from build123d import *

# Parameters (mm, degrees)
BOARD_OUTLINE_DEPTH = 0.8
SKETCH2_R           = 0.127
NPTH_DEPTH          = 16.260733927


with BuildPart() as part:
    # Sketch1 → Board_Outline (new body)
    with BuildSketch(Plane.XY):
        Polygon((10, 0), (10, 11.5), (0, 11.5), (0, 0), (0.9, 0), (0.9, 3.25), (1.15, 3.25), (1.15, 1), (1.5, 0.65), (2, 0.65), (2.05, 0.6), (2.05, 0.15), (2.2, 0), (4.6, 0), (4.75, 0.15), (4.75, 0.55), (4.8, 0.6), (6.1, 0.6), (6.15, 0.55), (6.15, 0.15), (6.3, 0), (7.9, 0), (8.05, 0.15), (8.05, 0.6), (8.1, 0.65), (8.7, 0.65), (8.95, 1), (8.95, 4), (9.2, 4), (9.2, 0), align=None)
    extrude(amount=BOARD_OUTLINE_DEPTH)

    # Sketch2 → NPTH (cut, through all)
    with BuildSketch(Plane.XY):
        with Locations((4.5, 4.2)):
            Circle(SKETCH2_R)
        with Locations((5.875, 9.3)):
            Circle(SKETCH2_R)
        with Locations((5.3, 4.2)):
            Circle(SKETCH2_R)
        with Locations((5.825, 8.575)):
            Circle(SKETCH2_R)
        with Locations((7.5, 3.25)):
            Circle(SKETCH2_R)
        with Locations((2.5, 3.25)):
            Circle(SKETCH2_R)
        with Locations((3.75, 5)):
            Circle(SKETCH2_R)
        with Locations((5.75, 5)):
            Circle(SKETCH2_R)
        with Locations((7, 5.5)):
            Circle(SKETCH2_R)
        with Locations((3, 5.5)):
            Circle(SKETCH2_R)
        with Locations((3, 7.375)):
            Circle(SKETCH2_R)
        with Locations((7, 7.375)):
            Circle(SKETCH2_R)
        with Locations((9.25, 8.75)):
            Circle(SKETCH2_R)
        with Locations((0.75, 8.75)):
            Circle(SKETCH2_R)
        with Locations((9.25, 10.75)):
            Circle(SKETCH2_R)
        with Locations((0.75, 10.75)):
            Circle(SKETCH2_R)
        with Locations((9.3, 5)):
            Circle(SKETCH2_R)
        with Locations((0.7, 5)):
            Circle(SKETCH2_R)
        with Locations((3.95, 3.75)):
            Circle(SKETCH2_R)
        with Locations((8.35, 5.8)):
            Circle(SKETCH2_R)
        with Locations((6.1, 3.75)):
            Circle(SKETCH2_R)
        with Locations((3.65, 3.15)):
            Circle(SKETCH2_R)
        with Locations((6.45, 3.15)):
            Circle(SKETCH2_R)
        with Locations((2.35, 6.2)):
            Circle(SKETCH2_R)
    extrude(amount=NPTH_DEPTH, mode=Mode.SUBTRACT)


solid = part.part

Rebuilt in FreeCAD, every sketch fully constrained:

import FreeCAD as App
import Part
import Sketcher
from FreeCAD import Vector

doc = App.newDocument("Part")
body = doc.addObject("PartDesign::Body", "Body")

# Sketch on XY plane
sketch1 = body.newObject("Sketcher::SketchObject", "Sketch")
sketch1.AttachmentSupport = (doc.getObject("XY_Plane"), [""])
sketch1.MapMode = "FlatFace"
sketch1.addGeometry(Part.LineSegment(Vector(10, 0, 0), Vector(10, 11.5, 0)), False)
sketch1.addGeometry(Part.LineSegment(Vector(10, 11.5, 0), Vector(0, 11.5, 0)), False)
sketch1.addGeometry(Part.LineSegment(Vector(0, 11.5, 0), Vector(0, 0, 0)), False)
sketch1.addGeometry(Part.LineSegment(Vector(0, 0, 0), Vector(0.9, 0, 0)), False)
sketch1.addGeometry(Part.LineSegment(Vector(0.9, 0, 0), Vector(0.9, 3.25, 0)), False)
sketch1.addGeometry(Part.LineSegment(Vector(0.9, 3.25, 0), Vector(1.15, 3.25, 0)), False)
sketch1.addGeometry(Part.LineSegment(Vector(1.15, 3.25, 0), Vector(1.15, 1, 0)), False)
sketch1.addGeometry(Part.LineSegment(Vector(1.15, 1, 0), Vector(1.5, 0.65, 0)), False)
sketch1.addGeometry(Part.LineSegment(Vector(1.5, 0.65, 0), Vector(2, 0.65, 0)), False)
sketch1.addGeometry(Part.LineSegment(Vector(2, 0.65, 0), Vector(2.05, 0.6, 0)), False)
sketch1.addGeometry(Part.LineSegment(Vector(2.05, 0.6, 0), Vector(2.05, 0.15, 0)), False)
sketch1.addGeometry(Part.LineSegment(Vector(2.05, 0.15, 0), Vector(2.2, 0, 0)), False)
sketch1.addGeometry(Part.LineSegment(Vector(2.2, 0, 0), Vector(4.6, 0, 0)), False)
sketch1.addGeometry(Part.LineSegment(Vector(4.6, 0, 0), Vector(4.75, 0.15, 0)), False)
sketch1.addGeometry(Part.LineSegment(Vector(4.75, 0.15, 0), Vector(4.75, 0.55, 0)), False)
sketch1.addGeometry(Part.LineSegment(Vector(4.75, 0.55, 0), Vector(4.8, 0.6, 0)), False)
sketch1.addGeometry(Part.LineSegment(Vector(4.8, 0.6, 0), Vector(6.1, 0.6, 0)), False)
sketch1.addGeometry(Part.LineSegment(Vector(6.1, 0.6, 0), Vector(6.15, 0.55, 0)), False)
sketch1.addGeometry(Part.LineSegment(Vector(6.15, 0.55, 0), Vector(6.15, 0.15, 0)), False)
sketch1.addGeometry(Part.LineSegment(Vector(6.15, 0.15, 0), Vector(6.3, 0, 0)), False)
sketch1.addGeometry(Part.LineSegment(Vector(6.3, 0, 0), Vector(7.9, 0, 0)), False)
sketch1.addGeometry(Part.LineSegment(Vector(7.9, 0, 0), Vector(8.05, 0.15, 0)), False)
sketch1.addGeometry(Part.LineSegment(Vector(8.05, 0.15, 0), Vector(8.05, 0.6, 0)), False)
sketch1.addGeometry(Part.LineSegment(Vector(8.05, 0.6, 0), Vector(8.1, 0.65, 0)), False)
sketch1.addGeometry(Part.LineSegment(Vector(8.1, 0.65, 0), Vector(8.7, 0.65, 0)), False)
sketch1.addGeometry(Part.LineSegment(Vector(8.7, 0.65, 0), Vector(8.95, 1, 0)), False)
sketch1.addGeometry(Part.LineSegment(Vector(8.95, 1, 0), Vector(8.95, 4, 0)), False)
sketch1.addGeometry(Part.LineSegment(Vector(8.95, 4, 0), Vector(9.2, 4, 0)), False)
sketch1.addGeometry(Part.LineSegment(Vector(9.2, 4, 0), Vector(9.2, 0, 0)), False)
sketch1.addGeometry(Part.LineSegment(Vector(9.2, 0, 0), Vector(10, 0, 0)), False)
sketch1.addConstraint(Sketcher.Constraint("Coincident", 0, 2, 1, 1))
sketch1.addConstraint(Sketcher.Constraint("Coincident", 1, 2, 2, 1))
sketch1.addConstraint(Sketcher.Constraint("Coincident", 2, 2, 3, 1))
sketch1.addConstraint(Sketcher.Constraint("Coincident", 3, 2, 4, 1))
sketch1.addConstraint(Sketcher.Constraint("Coincident", 4, 2, 5, 1))
sketch1.addConstraint(Sketcher.Constraint("Coincident", 5, 2, 6, 1))
sketch1.addConstraint(Sketcher.Constraint("Coincident", 6, 2, 7, 1))
sketch1.addConstraint(Sketcher.Constraint("Coincident", 7, 2, 8, 1))
sketch1.addConstraint(Sketcher.Constraint("Coincident", 8, 2, 9, 1))
sketch1.addConstraint(Sketcher.Constraint("Coincident", 9, 2, 10, 1))
sketch1.addConstraint(Sketcher.Constraint("Coincident", 10, 2, 11, 1))
sketch1.addConstraint(Sketcher.Constraint("Coincident", 11, 2, 12, 1))
sketch1.addConstraint(Sketcher.Constraint("Coincident", 12, 2, 13, 1))
sketch1.addConstraint(Sketcher.Constraint("Coincident", 13, 2, 14, 1))
sketch1.addConstraint(Sketcher.Constraint("Coincident", 14, 2, 15, 1))
sketch1.addConstraint(Sketcher.Constraint("Coincident", 15, 2, 16, 1))
sketch1.addConstraint(Sketcher.Constraint("Coincident", 16, 2, 17, 1))
sketch1.addConstraint(Sketcher.Constraint("Coincident", 17, 2, 18, 1))
sketch1.addConstraint(Sketcher.Constraint("Coincident", 18, 2, 19, 1))
sketch1.addConstraint(Sketcher.Constraint("Coincident", 19, 2, 20, 1))
sketch1.addConstraint(Sketcher.Constraint("Coincident", 20, 2, 21, 1))
sketch1.addConstraint(Sketcher.Constraint("Coincident", 21, 2, 22, 1))
sketch1.addConstraint(Sketcher.Constraint("Coincident", 22, 2, 23, 1))
sketch1.addConstraint(Sketcher.Constraint("Coincident", 23, 2, 24, 1))
sketch1.addConstraint(Sketcher.Constraint("Coincident", 24, 2, 25, 1))
sketch1.addConstraint(Sketcher.Constraint("Coincident", 25, 2, 26, 1))
sketch1.addConstraint(Sketcher.Constraint("Coincident", 26, 2, 27, 1))
sketch1.addConstraint(Sketcher.Constraint("Coincident", 27, 2, 28, 1))
sketch1.addConstraint(Sketcher.Constraint("Coincident", 28, 2, 29, 1))
sketch1.addConstraint(Sketcher.Constraint("Coincident", 29, 2, 0, 1))
sketch1.addConstraint(Sketcher.Constraint("Vertical", 0))
sketch1.addConstraint(Sketcher.Constraint("Horizontal", 1))
sketch1.addConstraint(Sketcher.Constraint("Vertical", 2))
sketch1.addConstraint(Sketcher.Constraint("Horizontal", 3))
sketch1.addConstraint(Sketcher.Constraint("Vertical", 4))
sketch1.addConstraint(Sketcher.Constraint("Horizontal", 5))
sketch1.addConstraint(Sketcher.Constraint("Vertical", 6))
sketch1.addConstraint(Sketcher.Constraint("Horizontal", 8))
sketch1.addConstraint(Sketcher.Constraint("Vertical", 10))
sketch1.addConstraint(Sketcher.Constraint("Horizontal", 12))
sketch1.addConstraint(Sketcher.Constraint("Vertical", 14))
sketch1.addConstraint(Sketcher.Constraint("Horizontal", 16))
sketch1.addConstraint(Sketcher.Constraint("Vertical", 18))
sketch1.addConstraint(Sketcher.Constraint("Horizontal", 20))
sketch1.addConstraint(Sketcher.Constraint("Vertical", 22))
sketch1.addConstraint(Sketcher.Constraint("Horizontal", 24))
sketch1.addConstraint(Sketcher.Constraint("Vertical", 26))
sketch1.addConstraint(Sketcher.Constraint("Horizontal", 27))
sketch1.addConstraint(Sketcher.Constraint("Vertical", 28))
sketch1.addConstraint(Sketcher.Constraint("Horizontal", 29))
sketch1.addConstraint(Sketcher.Constraint("Coincident", 2, 2, -1, 1))
sketch1.addConstraint(Sketcher.Constraint("PointOnObject", 11, 2, -1))
sketch1.addConstraint(Sketcher.Constraint("PointOnObject", 19, 2, -1))
sketch1.addConstraint(Sketcher.Constraint("PointOnObject", 28, 2, -1))
sketch1.addConstraint(Sketcher.Constraint("Parallel", 7, 9))
sketch1.addConstraint(Sketcher.Constraint("Parallel", 9, 11))
sketch1.addConstraint(Sketcher.Constraint("Perpendicular", 11, 13))
sketch1.addConstraint(Sketcher.Constraint("Parallel", 13, 15))
sketch1.addConstraint(Sketcher.Constraint("Perpendicular", 15, 17))
sketch1.addConstraint(Sketcher.Constraint("Parallel", 17, 19))
sketch1.addConstraint(Sketcher.Constraint("Perpendicular", 19, 21))
sketch1.addConstraint(Sketcher.Constraint("Parallel", 21, 23))
sketch1.addConstraint(Sketcher.Constraint("Horizontal", 10, 2, 13, 2))
sketch1.addConstraint(Sketcher.Constraint("Horizontal", 9, 2, 15, 2))
sketch1.addConstraint(Sketcher.Constraint("Horizontal", 14, 2, 17, 2))
sketch1.addConstraint(Sketcher.Constraint("Horizontal", 13, 2, 18, 2))
sketch1.addConstraint(Sketcher.Constraint("Horizontal", 18, 2, 21, 2))
sketch1.addConstraint(Sketcher.Constraint("Horizontal", 16, 2, 22, 2))
sketch1.addConstraint(Sketcher.Constraint("Horizontal", 8, 2, 23, 2))
sketch1.addConstraint(Sketcher.Constraint("Horizontal", 6, 2, 25, 2))
sketch1.addConstraint(Sketcher.Constraint("Equal", 5, 27))
sketch1.addConstraint(Sketcher.Constraint("Equal", 11, 13))
sketch1.addConstraint(Sketcher.Constraint("Equal", 9, 15))
sketch1.addConstraint(Sketcher.Constraint("DistanceX", 1, 2, 1, 1, 10.0))
sketch1.addConstraint(Sketcher.Constraint("DistanceY", 26, 1, 26, 2, 3.0))
sketch1.addConstraint(Sketcher.Constraint("DistanceY", 28, 2, 28, 1, 4.0))
sketch1.addConstraint(Sketcher.Constraint("DistanceX", 3, 1, 3, 2, 0.9))
sketch1.addConstraint(Sketcher.Constraint("DistanceX", 8, 1, 8, 2, 0.5))
sketch1.addConstraint(Sketcher.Constraint("DistanceX", 12, 1, 12, 2, 2.4))
sketch1.addConstraint(Sketcher.Constraint("DistanceX", 16, 1, 16, 2, 1.3))
sketch1.addConstraint(Sketcher.Constraint("DistanceX", 20, 1, 20, 2, 1.6))
sketch1.addConstraint(Sketcher.Constraint("DistanceX", 24, 1, 24, 2, 0.6))
sketch1.addConstraint(Sketcher.Constraint("DistanceX", 29, 1, 29, 2, 0.8))
sketch1.addConstraint(Sketcher.Constraint("DistanceY", 0, 1, 0, 2, 11.5))
sketch1.addConstraint(Sketcher.Constraint("DistanceY", 14, 1, 14, 2, 0.4))
sketch1.addConstraint(Sketcher.Constraint("DistanceX", -1, 1, 8, 2, 2.0))
sketch1.addConstraint(Sketcher.Constraint("DistanceX", 5, 1, 5, 2, 0.25))
sketch1.addConstraint(Sketcher.Constraint("DistanceY", 4, 1, 4, 2, 3.25))
sketch1.addConstraint(Sketcher.Constraint("DistanceY", 10, 2, 10, 1, 0.45))
pad1 = body.newObject("PartDesign::Pad", "Pad")
pad1.Profile = sketch1
pad1.Length = 0.8

# Sketch on XY plane
sketch2 = body.newObject("Sketcher::SketchObject", "Sketch001")
sketch2.AttachmentSupport = (doc.getObject("XY_Plane"), [""])
sketch2.MapMode = "FlatFace"
sketch2.addGeometry(Part.Circle(Vector(4.5, 4.2, 0), Vector(0, 0, 1), 0.127), False)
sketch2.addGeometry(Part.Circle(Vector(5.875, 9.3, 0), Vector(0, 0, 1), 0.127), False)
sketch2.addGeometry(Part.Circle(Vector(5.3, 4.2, 0), Vector(0, 0, 1), 0.127), False)
sketch2.addGeometry(Part.Circle(Vector(5.825, 8.575, 0), Vector(0, 0, 1), 0.127), False)
sketch2.addGeometry(Part.Circle(Vector(7.5, 3.25, 0), Vector(0, 0, 1), 0.127), False)
sketch2.addGeometry(Part.Circle(Vector(2.5, 3.25, 0), Vector(0, 0, 1), 0.127), False)
sketch2.addGeometry(Part.Circle(Vector(3.75, 5, 0), Vector(0, 0, 1), 0.127), False)
sketch2.addGeometry(Part.Circle(Vector(5.75, 5, 0), Vector(0, 0, 1), 0.127), False)
sketch2.addGeometry(Part.Circle(Vector(7, 5.5, 0), Vector(0, 0, 1), 0.127), False)
sketch2.addGeometry(Part.Circle(Vector(3, 5.5, 0), Vector(0, 0, 1), 0.127), False)
sketch2.addGeometry(Part.Circle(Vector(3, 7.375, 0), Vector(0, 0, 1), 0.127), False)
sketch2.addGeometry(Part.Circle(Vector(7, 7.375, 0), Vector(0, 0, 1), 0.127), False)
sketch2.addGeometry(Part.Circle(Vector(9.25, 8.75, 0), Vector(0, 0, 1), 0.127), False)
sketch2.addGeometry(Part.Circle(Vector(0.75, 8.75, 0), Vector(0, 0, 1), 0.127), False)
sketch2.addGeometry(Part.Circle(Vector(9.25, 10.75, 0), Vector(0, 0, 1), 0.127), False)
sketch2.addGeometry(Part.Circle(Vector(0.75, 10.75, 0), Vector(0, 0, 1), 0.127), False)
sketch2.addGeometry(Part.Circle(Vector(9.3, 5, 0), Vector(0, 0, 1), 0.127), False)
sketch2.addGeometry(Part.Circle(Vector(0.7, 5, 0), Vector(0, 0, 1), 0.127), False)
sketch2.addGeometry(Part.Circle(Vector(3.95, 3.75, 0), Vector(0, 0, 1), 0.127), False)
sketch2.addGeometry(Part.Circle(Vector(8.35, 5.8, 0), Vector(0, 0, 1), 0.127), False)
sketch2.addGeometry(Part.Circle(Vector(6.1, 3.75, 0), Vector(0, 0, 1), 0.127), False)
sketch2.addGeometry(Part.Circle(Vector(3.65, 3.15, 0), Vector(0, 0, 1), 0.127), False)
sketch2.addGeometry(Part.Circle(Vector(6.45, 3.15, 0), Vector(0, 0, 1), 0.127), False)
sketch2.addGeometry(Part.Circle(Vector(2.35, 6.2, 0), Vector(0, 0, 1), 0.127), False)
sketch2.addConstraint(Sketcher.Constraint("Equal", 0, 1))
sketch2.addConstraint(Sketcher.Constraint("Equal", 1, 2))
sketch2.addConstraint(Sketcher.Constraint("Equal", 2, 3))
sketch2.addConstraint(Sketcher.Constraint("Equal", 3, 4))
sketch2.addConstraint(Sketcher.Constraint("Equal", 4, 5))
sketch2.addConstraint(Sketcher.Constraint("Equal", 5, 6))
sketch2.addConstraint(Sketcher.Constraint("Equal", 6, 7))
sketch2.addConstraint(Sketcher.Constraint("Equal", 7, 8))
sketch2.addConstraint(Sketcher.Constraint("Equal", 8, 9))
sketch2.addConstraint(Sketcher.Constraint("Equal", 9, 10))
sketch2.addConstraint(Sketcher.Constraint("Equal", 10, 11))
sketch2.addConstraint(Sketcher.Constraint("Equal", 11, 12))
sketch2.addConstraint(Sketcher.Constraint("Equal", 12, 13))
sketch2.addConstraint(Sketcher.Constraint("Equal", 13, 14))
sketch2.addConstraint(Sketcher.Constraint("Equal", 14, 15))
sketch2.addConstraint(Sketcher.Constraint("Equal", 15, 16))
sketch2.addConstraint(Sketcher.Constraint("Equal", 16, 17))
sketch2.addConstraint(Sketcher.Constraint("Equal", 17, 18))
sketch2.addConstraint(Sketcher.Constraint("Equal", 18, 19))
sketch2.addConstraint(Sketcher.Constraint("Equal", 19, 20))
sketch2.addConstraint(Sketcher.Constraint("Equal", 20, 21))
sketch2.addConstraint(Sketcher.Constraint("Equal", 21, 22))
sketch2.addConstraint(Sketcher.Constraint("Equal", 22, 23))
sketch2.addConstraint(Sketcher.Constraint("Horizontal", 0, 3, 2, 3))
sketch2.addConstraint(Sketcher.Constraint("Horizontal", 4, 3, 5, 3))
sketch2.addConstraint(Sketcher.Constraint("Horizontal", 6, 3, 7, 3))
sketch2.addConstraint(Sketcher.Constraint("Horizontal", 8, 3, 9, 3))
sketch2.addConstraint(Sketcher.Constraint("Horizontal", 10, 3, 11, 3))
sketch2.addConstraint(Sketcher.Constraint("Horizontal", 12, 3, 13, 3))
sketch2.addConstraint(Sketcher.Constraint("Horizontal", 14, 3, 15, 3))
sketch2.addConstraint(Sketcher.Constraint("Horizontal", 7, 3, 16, 3))
sketch2.addConstraint(Sketcher.Constraint("Horizontal", 16, 3, 17, 3))
sketch2.addConstraint(Sketcher.Constraint("Horizontal", 18, 3, 20, 3))
sketch2.addConstraint(Sketcher.Constraint("Horizontal", 21, 3, 22, 3))
sketch2.addConstraint(Sketcher.Constraint("Vertical", 9, 3, 10, 3))
sketch2.addConstraint(Sketcher.Constraint("Vertical", 8, 3, 11, 3))
sketch2.addConstraint(Sketcher.Constraint("Vertical", 12, 3, 14, 3))
sketch2.addConstraint(Sketcher.Constraint("Vertical", 13, 3, 15, 3))
sketch2.addConstraint(Sketcher.Constraint("Diameter", 0, 0.254))
sketch2.addConstraint(Sketcher.Constraint("DistanceY", -1, 1, 6, 3, 5.0))
sketch2.addConstraint(Sketcher.Constraint("DistanceX", -1, 1, 8, 3, 7.0))
sketch2.addConstraint(Sketcher.Constraint("DistanceX", -1, 1, 9, 3, 3.0))
sketch2.addConstraint(Sketcher.Constraint("DistanceX", 0, 3, 4, 3, 3.0))
sketch2.addConstraint(Sketcher.Constraint("DistanceX", 5, 3, 0, 3, 2.0))
sketch2.addConstraint(Sketcher.Constraint("DistanceX", 6, 3, 7, 3, 2.0))
sketch2.addConstraint(Sketcher.Constraint("DistanceX", 13, 3, 6, 3, 3.0))
sketch2.addConstraint(Sketcher.Constraint("DistanceY", 12, 3, 14, 3, 2.0))
sketch2.addConstraint(Sketcher.Constraint("DistanceX", -1, 1, 0, 3, 4.5))
sketch2.addConstraint(Sketcher.Constraint("DistanceY", -1, 1, 0, 3, 4.2))
sketch2.addConstraint(Sketcher.Constraint("DistanceY", -1, 1, 1, 3, 9.3))
sketch2.addConstraint(Sketcher.Constraint("DistanceX", -1, 1, 2, 3, 5.3))
sketch2.addConstraint(Sketcher.Constraint("DistanceY", -1, 1, 8, 3, 5.5))
sketch2.addConstraint(Sketcher.Constraint("DistanceX", -1, 1, 16, 3, 9.3))
sketch2.addConstraint(Sketcher.Constraint("DistanceX", -1, 1, 17, 3, 0.7))
sketch2.addConstraint(Sketcher.Constraint("DistanceY", -1, 1, 19, 3, 5.8))
sketch2.addConstraint(Sketcher.Constraint("DistanceX", -1, 1, 20, 3, 6.1))
sketch2.addConstraint(Sketcher.Constraint("DistanceY", -1, 1, 23, 3, 6.2))
sketch2.addConstraint(Sketcher.Constraint("DistanceY", 10, 3, 3, 3, 1.2))
sketch2.addConstraint(Sketcher.Constraint("DistanceX", 7, 3, 12, 3, 3.5))
sketch2.addConstraint(Sketcher.Constraint("DistanceX", 6, 3, 18, 3, 0.2))
sketch2.addConstraint(Sketcher.Constraint("DistanceY", 5, 3, 18, 3, 0.5))
sketch2.addConstraint(Sketcher.Constraint("DistanceX", 7, 3, 19, 3, 2.6))
sketch2.addConstraint(Sketcher.Constraint("DistanceX", 21, 3, 18, 3, 0.3))
sketch2.addConstraint(Sketcher.Constraint("DistanceY", 21, 3, 18, 3, 0.6))
sketch2.addConstraint(Sketcher.Constraint("DistanceX", 7, 3, 22, 3, 0.7))
sketch2.addConstraint(Sketcher.Constraint("DistanceX", 23, 3, 6, 3, 1.4))
sketch2.addConstraint(Sketcher.Constraint("DistanceY", -1, 1, 4, 3, 3.25))
sketch2.addConstraint(Sketcher.Constraint("DistanceX", -1, 1, 6, 3, 3.75))
sketch2.addConstraint(Sketcher.Constraint("DistanceY", -1, 1, 12, 3, 8.75))
sketch2.addConstraint(Sketcher.Constraint("DistanceX", 3, 3, 1, 3, 0.05))
sketch2.addConstraint(Sketcher.Constraint("DistanceX", -1, 1, 1, 3, 5.875))
sketch2.addConstraint(Sketcher.Constraint("DistanceY", -1, 1, 3, 3, 8.575))
pocket1 = body.newObject("PartDesign::Pocket", "Pocket")
pocket1.Profile = sketch2
pocket1.Type = "ThroughAll"
pocket1.Reversed = True

doc.recompute()
